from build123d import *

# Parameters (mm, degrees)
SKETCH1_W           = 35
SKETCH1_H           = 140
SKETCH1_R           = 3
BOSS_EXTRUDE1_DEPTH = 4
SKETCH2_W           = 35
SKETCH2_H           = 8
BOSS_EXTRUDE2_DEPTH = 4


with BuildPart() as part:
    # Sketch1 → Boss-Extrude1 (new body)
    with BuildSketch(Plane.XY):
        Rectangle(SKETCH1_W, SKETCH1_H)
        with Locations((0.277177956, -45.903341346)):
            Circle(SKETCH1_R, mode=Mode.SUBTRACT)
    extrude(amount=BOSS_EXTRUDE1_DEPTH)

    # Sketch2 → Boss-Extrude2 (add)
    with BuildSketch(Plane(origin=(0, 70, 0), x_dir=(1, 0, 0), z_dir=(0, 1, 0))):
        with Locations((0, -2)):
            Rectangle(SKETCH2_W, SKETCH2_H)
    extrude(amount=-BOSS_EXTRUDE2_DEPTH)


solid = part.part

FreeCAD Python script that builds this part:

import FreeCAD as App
import Part
import Sketcher
from FreeCAD import Vector


def add_polygon(sketch, points):
    """Adds a closed chain of lines whose ends are joined by coincident constraints."""
    first, n = sketch.GeometryCount, len(points)
    for a, b in zip(points, points[1:] + points[:1]):
        sketch.addGeometry(Part.LineSegment(App.Vector(*a, 0), App.Vector(*b, 0)), False)
    for i in range(n):
        sketch.addConstraint(Sketcher.Constraint("Coincident", first + i, 2, first + (i + 1) % n, 1))

doc = App.newDocument("Part")
body = doc.addObject("PartDesign::Body", "Body")

# Sketch on XY plane
sketch1 = doc.addObject("Sketcher::SketchObject", "Sketch")
body.addObject(sketch1)
sketch1.AttachmentSupport = (doc.XY_Plane, [""])
sketch1.MapMode = "FlatFace"
add_polygon(sketch1, [(-17.5, 70), (-17.5, -70), (17.5, -70), (17.5, 70)])  # lines 0-3
sketch1.addGeometry(Part.Circle(Vector(0.3, -45.9, 0), Vector(0, 0, 1), 3), False)  # 4
sketch1.addConstraint([
    Sketcher.Constraint("Vertical", 0),
    Sketcher.Constraint("Horizontal", 1),
    Sketcher.Constraint("Vertical", 2),
    Sketcher.Constraint("Horizontal", 3),
    Sketcher.Constraint("Symmetric", 0, 2, 2, 2, -1, 1),
    Sketcher.Constraint("Diameter", 4, 6.0),
    Sketcher.Constraint("DistanceX", 1, 1, 1, 2, 35.0),
    Sketcher.Constraint("DistanceY", 0, 2, 0, 1, 140.0),
    Sketcher.Constraint("DistanceY", 4, 3, -1, 1, 45.903341),
    Sketcher.Constraint("DistanceX", -1, 1, 4, 3, 0.277178),
])
pad1 = doc.addObject("PartDesign::Pad", "Pad")
body.addObject(pad1)
pad1.Profile = sketch1
pad1.Length = 4

# Sketch on XZ plane
sketch2 = doc.addObject("Sketcher::SketchObject", "Sketch001")
body.addObject(sketch2)
sketch2.AttachmentSupport = (doc.XZ_Plane, [""])
sketch2.MapMode = "FlatFace"
sketch2.AttachmentOffset = App.Placement(Vector(0, 0, -70), App.Rotation())
add_polygon(sketch2, [(-18, -2), (-18, 6), (18, 6), (18, -2)])  # lines 0-3
sketch2.addConstraint([
    Sketcher.Constraint("Vertical", 0),
    Sketcher.Constraint("Horizontal", 1),
    Sketcher.Constraint("Vertical", 2),
    Sketcher.Constraint("Horizontal", 3),
    Sketcher.Constraint("DistanceX", 1, 1, 1, 2, 35.0),
    Sketcher.Constraint("DistanceY", 0, 1, 0, 2, 8.0),
    Sketcher.Constraint("DistanceY", -1, 1, 0, 2, 6.0),
    Sketcher.Constraint("DistanceX", 0, 2, -1, 1, 17.5),
])
pad2 = doc.addObject("PartDesign::Pad", "Pad001")
body.addObject(pad2)
pad2.Profile = sketch2
pad2.Length = 4

doc.recompute()
